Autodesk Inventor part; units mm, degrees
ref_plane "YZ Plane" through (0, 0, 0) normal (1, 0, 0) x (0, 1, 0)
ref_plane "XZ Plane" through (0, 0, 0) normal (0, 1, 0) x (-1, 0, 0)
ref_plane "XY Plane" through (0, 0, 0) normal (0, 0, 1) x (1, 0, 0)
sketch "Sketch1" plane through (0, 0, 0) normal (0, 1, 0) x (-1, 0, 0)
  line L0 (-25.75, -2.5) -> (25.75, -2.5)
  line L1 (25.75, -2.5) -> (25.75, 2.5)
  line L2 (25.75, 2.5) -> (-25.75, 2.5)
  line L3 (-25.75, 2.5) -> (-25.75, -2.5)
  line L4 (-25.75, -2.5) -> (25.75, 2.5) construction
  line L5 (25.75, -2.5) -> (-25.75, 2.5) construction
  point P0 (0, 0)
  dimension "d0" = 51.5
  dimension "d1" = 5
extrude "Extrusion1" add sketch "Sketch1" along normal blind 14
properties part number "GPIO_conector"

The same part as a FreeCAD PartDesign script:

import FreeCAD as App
import Part
import Sketcher
Q = App.Units.Quantity

doc = App.newDocument("Part")
body = doc.addObject("PartDesign::Body", "Body")

# Sketch on XZ plane
sketch1 = body.newObject("Sketcher::SketchObject", "Sketch")
sketch1.AttachmentSupport = (doc.getObject("XZ_Plane"), [""])
sketch1.MapMode = "FlatFace"
sketch1.addGeometry([
    Part.LineSegment(App.Vector(26, 2, 0), App.Vector(26, -2, 0)),
    Part.LineSegment(App.Vector(26, -2, 0), App.Vector(-26, -2, 0)),
    Part.LineSegment(App.Vector(-26, -2, 0), App.Vector(-26, 2, 0)),
    Part.LineSegment(App.Vector(-26, 2, 0), App.Vector(26, 2, 0)),
], False)
sketch1.addConstraint([
    Sketcher.Constraint("Coincident", 0, 2, 1, 1),
    Sketcher.Constraint("Coincident", 1, 2, 2, 1),
    Sketcher.Constraint("Coincident", 2, 2, 3, 1),
    Sketcher.Constraint("Coincident", 3, 2, 0, 1),
    Sketcher.Constraint("Vertical", 0),
    Sketcher.Constraint("Horizontal", 1),
    Sketcher.Constraint("Vertical", 2),
    Sketcher.Constraint("Horizontal", 3),
    Sketcher.Constraint("Symmetric", 0, 2, 2, 2, -1, 1),
    Sketcher.Constraint("DistanceY", 0, 2, 0, 1, Q("5 mm")),
    Sketcher.Constraint("DistanceX", 1, 2, 1, 1, Q("51.5 mm")),
])
pad1 = body.newObject("PartDesign::Pad", "Pad")
pad1.Profile = sketch1
pad1.Length = 14
pad1.Reversed = True

doc.recompute()
